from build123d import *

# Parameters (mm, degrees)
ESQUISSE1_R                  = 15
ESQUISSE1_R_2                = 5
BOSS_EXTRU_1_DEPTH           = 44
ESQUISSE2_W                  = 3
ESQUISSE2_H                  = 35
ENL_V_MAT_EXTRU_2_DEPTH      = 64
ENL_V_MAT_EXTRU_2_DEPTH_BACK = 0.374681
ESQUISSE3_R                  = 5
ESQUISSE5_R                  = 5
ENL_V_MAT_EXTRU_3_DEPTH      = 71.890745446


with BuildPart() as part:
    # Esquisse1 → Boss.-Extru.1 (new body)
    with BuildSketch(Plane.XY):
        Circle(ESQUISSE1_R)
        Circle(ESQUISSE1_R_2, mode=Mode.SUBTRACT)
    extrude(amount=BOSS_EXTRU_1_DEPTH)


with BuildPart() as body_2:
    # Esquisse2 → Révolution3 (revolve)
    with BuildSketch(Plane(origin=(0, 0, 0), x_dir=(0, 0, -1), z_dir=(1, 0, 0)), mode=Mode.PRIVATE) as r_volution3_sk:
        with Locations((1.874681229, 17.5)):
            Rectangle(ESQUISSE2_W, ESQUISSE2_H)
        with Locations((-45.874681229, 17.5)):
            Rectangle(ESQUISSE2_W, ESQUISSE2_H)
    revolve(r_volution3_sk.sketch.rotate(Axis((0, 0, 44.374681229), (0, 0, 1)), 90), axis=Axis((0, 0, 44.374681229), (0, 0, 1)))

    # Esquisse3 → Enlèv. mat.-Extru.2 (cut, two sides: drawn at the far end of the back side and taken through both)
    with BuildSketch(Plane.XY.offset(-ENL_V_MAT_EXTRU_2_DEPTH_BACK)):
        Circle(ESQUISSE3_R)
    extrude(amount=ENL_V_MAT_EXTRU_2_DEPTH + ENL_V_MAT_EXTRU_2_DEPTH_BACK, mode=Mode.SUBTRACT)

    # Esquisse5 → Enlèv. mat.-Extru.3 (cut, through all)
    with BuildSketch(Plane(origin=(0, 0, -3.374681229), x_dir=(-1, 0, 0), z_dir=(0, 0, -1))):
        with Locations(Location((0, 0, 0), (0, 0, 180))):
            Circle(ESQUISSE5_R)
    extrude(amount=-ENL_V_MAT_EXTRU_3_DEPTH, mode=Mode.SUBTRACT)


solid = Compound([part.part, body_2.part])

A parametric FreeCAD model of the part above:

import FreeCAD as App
import Part
import Sketcher
from FreeCAD import Vector
Q = App.Units.Quantity

doc = App.newDocument("Part")
body = doc.addObject("PartDesign::Body", "Body")

# Sketch on XY plane
sketch1 = body.newObject("Sketcher::SketchObject", "Sketch")
sketch1.AttachmentSupport = (doc.getObject("XY_Plane"), [""])
sketch1.MapMode = "FlatFace"
sketch1.addGeometry([
    Part.Circle(Vector(0, 0, 0), Vector(0, 0, 1), 15),
    Part.Circle(Vector(0, 0, 0), Vector(0, 0, 1), 5),
], False)
sketch1.addConstraint([
    Sketcher.Constraint("Coincident", 0, 3, -1, 1),
    Sketcher.Constraint("Coincident", 1, 3, -1, 1),
    Sketcher.Constraint("Diameter", 0, Q("30 mm")),
    Sketcher.Constraint("Diameter", 1, Q("10 mm")),
])
pad1 = body.newObject("PartDesign::Pad", "Pad")
pad1.Profile = sketch1
pad1.Length = 44
body2 = doc.addObject("PartDesign::Body", "Body001")
body2.AllowCompound = True

# Sketch on YZ plane
sketch2 = body2.newObject("Sketcher::SketchObject", "Sketch001")
sketch2.AttachmentSupport = (doc.getObject("YZ_Plane001"), [""])
sketch2.MapMode = "FlatFace"
sketch2.addGeometry([
    Part.LineSegment(Vector(35, -0.374681, 0), Vector(0, -0.374681, 0)),  # 0
    Part.LineSegment(Vector(0, -0.374681, 0), Vector(0, -3.374681, 0)),  # 1
    Part.LineSegment(Vector(0, -3.374681, 0), Vector(35, -3.374681, 0)),  # 2
    Part.LineSegment(Vector(35, -3.374681, 0), Vector(35, -0.374681, 0)),  # 3
    Part.LineSegment(Vector(35, 47.374681, 0), Vector(0, 47.374681, 0)),  # 4
    Part.LineSegment(Vector(0, 47.374681, 0), Vector(0, 44.374681, 0)),  # 5
    Part.LineSegment(Vector(0, 44.374681, 0), Vector(35, 44.374681, 0)),  # 6
    Part.LineSegment(Vector(35, 44.374681, 0), Vector(35, 47.374681, 0)),  # 7
], False)
sketch2.addConstraint([
    Sketcher.Constraint("Coincident", 0, 2, 1, 1),
    Sketcher.Constraint("Coincident", 1, 2, 2, 1),
    Sketcher.Constraint("Coincident", 2, 2, 3, 1),
    Sketcher.Constraint("Coincident", 3, 2, 0, 1),
    Sketcher.Constraint("Coincident", 4, 2, 5, 1),
    Sketcher.Constraint("Coincident", 5, 2, 6, 1),
    Sketcher.Constraint("Coincident", 6, 2, 7, 1),
    Sketcher.Constraint("Coincident", 7, 2, 4, 1),
    Sketcher.Constraint("Horizontal", 0),
    Sketcher.Constraint("Vertical", 1),
    Sketcher.Constraint("Horizontal", 2),
    Sketcher.Constraint("Vertical", 3),
    Sketcher.Constraint("Horizontal", 4),
    Sketcher.Constraint("Vertical", 5),
    Sketcher.Constraint("Horizontal", 6),
    Sketcher.Constraint("Vertical", 7),
    Sketcher.Constraint("PointOnObject", 0, 2, -2),
    Sketcher.Constraint("PointOnObject", 4, 2, -2),
    Sketcher.Constraint("Vertical", 3, 2, 6, 2),
    Sketcher.Constraint("Equal", 3, 5),
    Sketcher.Constraint("DistanceX", 0, 2, 0, 1, Q("35 mm")),
    Sketcher.Constraint("DistanceY", 1, 2, 1, 1, Q("3 mm")),
    Sketcher.Constraint("DistanceY", 0, 2, -1, 1, Q("0.374681 mm")),
    Sketcher.Constraint("DistanceY", -1, 1, 4, 2, Q("47.374681 mm")),
])
revolution = body2.newObject("PartDesign::Revolution", "Revolution")
revolution.Profile = sketch2
revolution.ReferenceAxis = (sketch2, ["V_Axis"])
revolution.Angle = 360

# Sketch on XY plane
sketch3 = body2.newObject("Sketcher::SketchObject", "Sketch002")
sketch3.AttachmentSupport = (doc.getObject("XY_Plane001"), [""])
sketch3.MapMode = "FlatFace"
sketch3.addGeometry(Part.Circle(Vector(0, 0, 0), Vector(0, 0, 1), 5), False)
sketch3.addConstraint([
    Sketcher.Constraint("Coincident", 0, 3, -1, 1),
    Sketcher.Constraint("Diameter", 0, Q("10 mm")),
])
pocket1 = body2.newObject("PartDesign::Pocket", "Pocket")
pocket1.Profile = sketch3
pocket1.Type = "TwoLengths"
pocket1.Length = 64
pocket1.Length2 = 0.374681
pocket1.Reversed = True

# Sketch on XY plane
sketch4 = body2.newObject("Sketcher::SketchObject", "Sketch003")
sketch4.AttachmentSupport = (doc.getObject("XY_Plane001"), [""])
sketch4.MapMode = "FlatFace"
sketch4.AttachmentOffset = App.Placement(Vector(0, 0, -3.374681), App.Rotation())
sketch4.addGeometry(Part.Circle(Vector(0, 0, 0), Vector(0, 0, 1), 5), False)
sketch4.addConstraint([
    Sketcher.Constraint("Coincident", 0, 3, -1, 1),
    Sketcher.Constraint("Diameter", 0, Q("10 mm")),
])
pocket2 = body2.newObject("PartDesign::Pocket", "Pocket001")
pocket2.Profile = sketch4
pocket2.Type = "ThroughAll"
pocket2.Reversed = True

doc.recompute()
